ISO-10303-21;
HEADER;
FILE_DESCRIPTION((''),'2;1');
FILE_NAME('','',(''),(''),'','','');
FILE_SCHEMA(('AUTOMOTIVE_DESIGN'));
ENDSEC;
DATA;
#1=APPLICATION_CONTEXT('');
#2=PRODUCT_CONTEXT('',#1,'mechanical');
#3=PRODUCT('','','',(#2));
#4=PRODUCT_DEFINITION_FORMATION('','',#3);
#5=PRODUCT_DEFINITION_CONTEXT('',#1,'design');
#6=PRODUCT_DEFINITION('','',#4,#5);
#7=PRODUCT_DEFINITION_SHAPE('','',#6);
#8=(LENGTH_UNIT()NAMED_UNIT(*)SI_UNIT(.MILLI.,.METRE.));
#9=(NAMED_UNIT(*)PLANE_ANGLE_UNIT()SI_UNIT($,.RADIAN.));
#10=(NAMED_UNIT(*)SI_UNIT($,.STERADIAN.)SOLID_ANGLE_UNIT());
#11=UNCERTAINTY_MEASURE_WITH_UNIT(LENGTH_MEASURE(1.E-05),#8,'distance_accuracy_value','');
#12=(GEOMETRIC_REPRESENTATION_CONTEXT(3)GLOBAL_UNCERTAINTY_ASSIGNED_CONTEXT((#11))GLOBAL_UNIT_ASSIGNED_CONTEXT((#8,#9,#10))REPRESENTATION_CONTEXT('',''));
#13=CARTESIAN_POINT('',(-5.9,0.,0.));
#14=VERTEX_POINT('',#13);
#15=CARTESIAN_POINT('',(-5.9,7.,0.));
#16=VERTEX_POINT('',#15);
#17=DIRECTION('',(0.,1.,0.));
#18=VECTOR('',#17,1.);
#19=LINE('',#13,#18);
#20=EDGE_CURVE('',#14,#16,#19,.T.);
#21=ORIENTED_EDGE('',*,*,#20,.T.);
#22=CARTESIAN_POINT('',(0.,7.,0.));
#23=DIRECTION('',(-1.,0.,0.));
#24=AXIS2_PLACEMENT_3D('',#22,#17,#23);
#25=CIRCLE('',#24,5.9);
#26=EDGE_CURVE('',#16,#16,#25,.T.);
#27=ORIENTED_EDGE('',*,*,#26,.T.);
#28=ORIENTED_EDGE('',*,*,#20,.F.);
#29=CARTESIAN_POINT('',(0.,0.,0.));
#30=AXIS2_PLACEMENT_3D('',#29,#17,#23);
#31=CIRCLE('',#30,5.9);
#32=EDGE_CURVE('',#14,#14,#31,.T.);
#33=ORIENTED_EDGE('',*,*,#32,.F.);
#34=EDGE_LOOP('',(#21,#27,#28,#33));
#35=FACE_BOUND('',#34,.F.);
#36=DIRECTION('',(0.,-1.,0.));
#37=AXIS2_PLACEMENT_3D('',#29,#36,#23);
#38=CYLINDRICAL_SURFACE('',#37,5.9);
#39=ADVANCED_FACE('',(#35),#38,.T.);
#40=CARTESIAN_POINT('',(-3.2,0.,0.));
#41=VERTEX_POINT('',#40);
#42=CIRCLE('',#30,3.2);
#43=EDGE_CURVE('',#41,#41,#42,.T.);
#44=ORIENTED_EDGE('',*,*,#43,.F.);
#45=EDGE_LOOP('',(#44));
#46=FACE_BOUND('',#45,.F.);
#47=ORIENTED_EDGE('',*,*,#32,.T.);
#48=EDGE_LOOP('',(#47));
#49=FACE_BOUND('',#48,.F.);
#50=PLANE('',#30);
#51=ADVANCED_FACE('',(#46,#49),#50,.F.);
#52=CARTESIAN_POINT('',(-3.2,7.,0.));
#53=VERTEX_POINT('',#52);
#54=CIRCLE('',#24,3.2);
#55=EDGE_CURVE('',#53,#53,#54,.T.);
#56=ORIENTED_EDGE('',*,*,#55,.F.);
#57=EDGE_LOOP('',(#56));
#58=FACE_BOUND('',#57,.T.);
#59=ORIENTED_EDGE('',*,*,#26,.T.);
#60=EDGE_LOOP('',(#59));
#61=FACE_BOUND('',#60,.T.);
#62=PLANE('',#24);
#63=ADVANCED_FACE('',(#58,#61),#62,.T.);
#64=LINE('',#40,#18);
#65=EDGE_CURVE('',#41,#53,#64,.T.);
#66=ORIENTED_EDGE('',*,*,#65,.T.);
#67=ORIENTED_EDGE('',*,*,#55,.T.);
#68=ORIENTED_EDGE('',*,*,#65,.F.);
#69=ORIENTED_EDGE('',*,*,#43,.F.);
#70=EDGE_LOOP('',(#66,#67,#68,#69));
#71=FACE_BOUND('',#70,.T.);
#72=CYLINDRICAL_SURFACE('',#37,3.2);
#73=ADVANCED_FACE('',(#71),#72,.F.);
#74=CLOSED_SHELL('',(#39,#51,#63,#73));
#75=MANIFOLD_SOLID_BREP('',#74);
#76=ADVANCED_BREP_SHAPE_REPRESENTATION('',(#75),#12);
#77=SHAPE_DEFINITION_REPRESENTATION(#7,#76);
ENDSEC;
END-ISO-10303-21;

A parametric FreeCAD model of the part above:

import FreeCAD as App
import Part
import Sketcher

V = App.Vector

doc = App.newDocument("Part")
body = doc.addObject("PartDesign::Body", "Body")

sketch1 = body.newObject("Sketcher::SketchObject", "Sketch")
sketch1.AttachmentSupport = (doc.getObject("XZ_Plane"), [""])
sketch1.MapMode = "FlatFace"
sketch1.addGeometry([
    Part.Circle(V(0, 0, 0), V(0, 0, 1), 5.9),
    Part.Circle(V(0, 0, 0), V(0, 0, 1), 3.2),
], False)
sketch1.addConstraint([
    Sketcher.Constraint("Coincident", 0, 3, -1, 1),
    Sketcher.Constraint("Coincident", 1, 3, -1, 1),
    Sketcher.Constraint("Diameter", 0, 11.8),
    Sketcher.Constraint("Diameter", 1, 6.4),
])
pad1 = body.newObject("PartDesign::Pad", "Pad")
pad1.Profile = sketch1
pad1.Length = 7
pad1.Reversed = True

doc.recompute()
